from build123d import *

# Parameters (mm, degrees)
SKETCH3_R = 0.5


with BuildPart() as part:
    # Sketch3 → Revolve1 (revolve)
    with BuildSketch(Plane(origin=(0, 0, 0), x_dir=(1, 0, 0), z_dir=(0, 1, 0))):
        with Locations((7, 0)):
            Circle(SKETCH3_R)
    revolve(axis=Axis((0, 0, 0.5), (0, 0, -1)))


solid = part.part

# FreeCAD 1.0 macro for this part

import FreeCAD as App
import Part
import Sketcher
from FreeCAD import Vector

doc = App.newDocument("Part")
params = doc.addObject("Spreadsheet::Sheet", "Params")
for row, (alias, value) in enumerate([
    ("sketch1_diameter", "1 mm"),
    ("revolution_angle", "360 deg"),
], start=1):
    params.set(f"A{row}", alias)
    params.set(f"B{row}", "=" + value)
    params.setAlias(f"B{row}", alias)

body = doc.addObject("PartDesign::Body", "Body")

sketch1 = body.newObject("Sketcher::SketchObject", "Sketch")
sketch1.AttachmentSupport = (doc.getObject("XZ_Plane"), [""])
sketch1.MapMode = "FlatFace"
sketch1.addGeometry(Part.Circle(Vector(7, 0, 0), Vector(0, 0, 1), 0.5), False)
sketch1.addConstraint([
    Sketcher.Constraint("PointOnObject", 0, 3, -1),
    Sketcher.Constraint("Diameter", 0, 1.0),
    Sketcher.Constraint("DistanceX", -1, 1, 0, 3, 7.0),
])
sketch1.setExpression("Constraints[1]", "Params.sketch1_diameter")
revolution = body.newObject("PartDesign::Revolution", "Revolution")
revolution.Profile = sketch1
revolution.ReferenceAxis = (sketch1, ["V_Axis"])
revolution.setExpression("Angle", "Params.revolution_angle")

doc.recompute()
